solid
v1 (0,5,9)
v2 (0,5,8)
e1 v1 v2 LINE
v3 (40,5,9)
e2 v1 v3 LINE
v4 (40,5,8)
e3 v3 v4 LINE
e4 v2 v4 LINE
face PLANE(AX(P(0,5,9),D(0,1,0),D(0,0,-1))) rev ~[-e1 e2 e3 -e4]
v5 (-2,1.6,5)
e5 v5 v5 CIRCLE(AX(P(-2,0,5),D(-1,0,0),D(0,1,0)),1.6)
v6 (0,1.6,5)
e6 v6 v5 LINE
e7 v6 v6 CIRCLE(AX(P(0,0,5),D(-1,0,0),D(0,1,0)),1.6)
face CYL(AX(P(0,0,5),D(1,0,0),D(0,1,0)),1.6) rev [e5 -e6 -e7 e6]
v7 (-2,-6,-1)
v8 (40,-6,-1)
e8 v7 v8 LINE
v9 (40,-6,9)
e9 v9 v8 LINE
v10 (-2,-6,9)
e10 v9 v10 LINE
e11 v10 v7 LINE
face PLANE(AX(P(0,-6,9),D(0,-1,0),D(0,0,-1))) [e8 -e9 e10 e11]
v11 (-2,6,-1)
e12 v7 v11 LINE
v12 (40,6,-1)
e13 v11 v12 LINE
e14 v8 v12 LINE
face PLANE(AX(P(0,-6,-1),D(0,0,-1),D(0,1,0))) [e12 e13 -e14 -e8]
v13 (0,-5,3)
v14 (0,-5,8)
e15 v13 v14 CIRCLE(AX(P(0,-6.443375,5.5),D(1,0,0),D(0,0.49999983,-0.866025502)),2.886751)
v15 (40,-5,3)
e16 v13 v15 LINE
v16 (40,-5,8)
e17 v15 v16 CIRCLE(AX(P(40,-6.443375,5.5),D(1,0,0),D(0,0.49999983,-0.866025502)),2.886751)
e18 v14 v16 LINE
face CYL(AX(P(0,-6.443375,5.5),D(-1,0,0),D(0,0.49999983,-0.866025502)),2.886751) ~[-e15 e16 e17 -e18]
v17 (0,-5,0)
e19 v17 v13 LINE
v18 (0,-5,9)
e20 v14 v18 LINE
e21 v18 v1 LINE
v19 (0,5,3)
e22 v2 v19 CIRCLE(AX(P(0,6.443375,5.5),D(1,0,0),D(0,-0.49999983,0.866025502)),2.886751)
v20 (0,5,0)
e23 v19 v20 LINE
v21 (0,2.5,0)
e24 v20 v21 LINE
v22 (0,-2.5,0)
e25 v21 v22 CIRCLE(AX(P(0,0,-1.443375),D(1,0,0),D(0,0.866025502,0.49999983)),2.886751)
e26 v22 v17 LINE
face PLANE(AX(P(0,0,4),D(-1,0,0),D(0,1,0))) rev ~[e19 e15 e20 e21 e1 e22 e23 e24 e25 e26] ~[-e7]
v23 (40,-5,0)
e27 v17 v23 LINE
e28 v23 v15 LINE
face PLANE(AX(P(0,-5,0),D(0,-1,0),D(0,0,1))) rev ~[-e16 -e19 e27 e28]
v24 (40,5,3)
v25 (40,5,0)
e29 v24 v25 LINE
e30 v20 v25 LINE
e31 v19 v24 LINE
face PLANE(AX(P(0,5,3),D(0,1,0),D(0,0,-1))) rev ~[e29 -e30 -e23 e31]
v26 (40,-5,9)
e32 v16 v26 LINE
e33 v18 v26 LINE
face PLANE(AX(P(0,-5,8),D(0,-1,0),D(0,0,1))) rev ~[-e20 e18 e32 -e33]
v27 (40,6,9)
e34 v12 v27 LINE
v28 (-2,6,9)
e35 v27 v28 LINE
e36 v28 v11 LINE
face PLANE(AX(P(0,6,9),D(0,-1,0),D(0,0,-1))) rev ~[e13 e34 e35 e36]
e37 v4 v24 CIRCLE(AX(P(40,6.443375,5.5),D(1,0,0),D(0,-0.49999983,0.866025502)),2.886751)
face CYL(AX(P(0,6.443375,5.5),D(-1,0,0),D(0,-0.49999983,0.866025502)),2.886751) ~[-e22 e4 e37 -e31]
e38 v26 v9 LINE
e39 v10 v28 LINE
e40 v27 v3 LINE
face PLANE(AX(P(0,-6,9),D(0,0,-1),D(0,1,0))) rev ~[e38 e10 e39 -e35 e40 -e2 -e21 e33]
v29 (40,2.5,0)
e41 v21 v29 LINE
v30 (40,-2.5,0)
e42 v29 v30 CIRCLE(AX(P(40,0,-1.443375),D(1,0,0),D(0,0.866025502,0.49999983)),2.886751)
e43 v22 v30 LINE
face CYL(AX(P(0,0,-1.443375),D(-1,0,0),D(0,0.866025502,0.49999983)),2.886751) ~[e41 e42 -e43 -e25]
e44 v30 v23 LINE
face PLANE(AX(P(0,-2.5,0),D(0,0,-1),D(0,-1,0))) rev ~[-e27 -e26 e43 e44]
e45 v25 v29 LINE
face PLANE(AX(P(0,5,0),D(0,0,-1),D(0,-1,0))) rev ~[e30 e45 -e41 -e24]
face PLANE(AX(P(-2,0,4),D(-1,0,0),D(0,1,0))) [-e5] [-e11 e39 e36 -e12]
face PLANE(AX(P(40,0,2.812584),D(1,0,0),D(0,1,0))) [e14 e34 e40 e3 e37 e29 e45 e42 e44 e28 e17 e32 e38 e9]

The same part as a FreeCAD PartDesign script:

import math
import FreeCAD as App
import Part
import Sketcher


def add_polygon(sketch, points):
    """Adds a closed chain of lines whose ends are joined by coincident constraints."""
    first, n = sketch.GeometryCount, len(points)
    for a, b in zip(points, points[1:] + points[:1]):
        sketch.addGeometry(Part.LineSegment(App.Vector(*a, 0), App.Vector(*b, 0)), False)
    for i in range(n):
        sketch.addConstraint(Sketcher.Constraint("Coincident", first + i, 2, first + (i + 1) % n, 1))

doc = App.newDocument("Part")
body = doc.addObject("PartDesign::Body", "Body")

# Sketch on YZ plane
sketch1 = body.newObject("Sketcher::SketchObject", "Sketch")
sketch1.AttachmentSupport = (doc.getObject("YZ_Plane"), [""])
sketch1.MapMode = "FlatFace"
sketch1.addGeometry([
    Part.LineSegment(App.Vector(-5, 8, 0), App.Vector(-5, 9, 0)),  # 0
    Part.LineSegment(App.Vector(-5, 9, 0), App.Vector(-6, 9, 0)),  # 1
    Part.LineSegment(App.Vector(-6, 9, 0), App.Vector(-6, -1, 0)),  # 2
    Part.LineSegment(App.Vector(-6, -1, 0), App.Vector(6, -1, 0)),  # 3
    Part.LineSegment(App.Vector(6, -1, 0), App.Vector(6, 9, 0)),  # 4
    Part.LineSegment(App.Vector(6, 9, 0), App.Vector(5, 9, 0)),  # 5
    Part.LineSegment(App.Vector(5, 9, 0), App.Vector(5, 8, 0)),  # 6
    Part.ArcOfCircle(Part.Circle(App.Vector(6.4, 5.5, 0), App.Vector(0, 0, 1), 2.9), math.radians(120), math.radians(240)),  # 7
    Part.LineSegment(App.Vector(5, 3, 0), App.Vector(5, 0, 0)),  # 8
    Part.LineSegment(App.Vector(5, 0, 0), App.Vector(2.5, 0, 0)),  # 9
    Part.ArcOfCircle(Part.Circle(App.Vector(0, -1.4, 0), App.Vector(0, 0, 1), 2.9), math.radians(30), math.radians(150)),  # 10
    Part.LineSegment(App.Vector(-2.5, 0, 0), App.Vector(-5, 0, 0)),  # 11
    Part.LineSegment(App.Vector(-5, 0, 0), App.Vector(-5, 3, 0)),  # 12
    Part.ArcOfCircle(Part.Circle(App.Vector(-6.4, 5.5, 0), App.Vector(0, 0, 1), 2.9), math.radians(-60), math.radians(60)),  # 13
], False)
sketch1.addConstraint([
    Sketcher.Constraint("Coincident", 0, 2, 1, 1),
    Sketcher.Constraint("Coincident", 1, 2, 2, 1),
    Sketcher.Constraint("Coincident", 2, 2, 3, 1),
    Sketcher.Constraint("Coincident", 3, 2, 4, 1),
    Sketcher.Constraint("Coincident", 4, 2, 5, 1),
    Sketcher.Constraint("Coincident", 5, 2, 6, 1),
    Sketcher.Constraint("Coincident", 6, 2, 7, 1),
    Sketcher.Constraint("Coincident", 7, 2, 8, 1),
    Sketcher.Constraint("Coincident", 8, 2, 9, 1),
    Sketcher.Constraint("Coincident", 9, 2, 10, 1),
    Sketcher.Constraint("Coincident", 10, 2, 11, 1),
    Sketcher.Constraint("Coincident", 11, 2, 12, 1),
    Sketcher.Constraint("Coincident", 12, 2, 13, 1),
    Sketcher.Constraint("Coincident", 13, 2, 0, 1),
    Sketcher.Constraint("Vertical", 0),
    Sketcher.Constraint("Horizontal", 1),
    Sketcher.Constraint("Vertical", 2),
    Sketcher.Constraint("Horizontal", 3),
    Sketcher.Constraint("Vertical", 4),
    Sketcher.Constraint("Horizontal", 5),
    Sketcher.Constraint("Vertical", 6),
    Sketcher.Constraint("Vertical", 8),
    Sketcher.Constraint("Horizontal", 9),
    Sketcher.Constraint("Horizontal", 11),
    Sketcher.Constraint("Vertical", 12),
    Sketcher.Constraint("Equal", 7, 10),
    Sketcher.Constraint("Equal", 10, 13),
    Sketcher.Constraint("Symmetric", 9, 2, 10, 2, -1, 1),
    Sketcher.Constraint("Symmetric", 7, 3, 13, 3, -2),
    Sketcher.Constraint("Symmetric", 1, 2, 4, 2, -2),
    Sketcher.Constraint("Symmetric", 8, 2, 11, 2, -2),
    Sketcher.Constraint("Horizontal", 6, 2, 13, 2),
    Sketcher.Constraint("Vertical", 6, 2, 7, 2),
    Sketcher.Constraint("Equal", 5, 0),
    Sketcher.Constraint("DistanceX", 1, 2, 1, 1, 1.0),
    Sketcher.Constraint("DistanceX", 3, 1, 3, 2, 12.0),
    Sketcher.Constraint("DistanceY", 2, 2, 2, 1, 10.0),
    Sketcher.Constraint("DistanceY", 8, 2, 8, 1, 3.0),
    Sketcher.Constraint("DistanceX", 9, 2, 9, 1, 2.5),
    Sketcher.Constraint("DistanceY", -1, 1, 0, 2, 9.0),
    Sketcher.Constraint("Radius", 7, 2.886751),
])
pad1 = body.newObject("PartDesign::Pad", "Pad")
pad1.Profile = sketch1
pad1.Length = 40

# Sketch on YZ plane
sketch2 = body.newObject("Sketcher::SketchObject", "Sketch001")
sketch2.AttachmentSupport = (doc.getObject("YZ_Plane"), [""])
sketch2.MapMode = "FlatFace"
add_polygon(sketch2, [(-6, -1), (-6, 9), (6, 9), (6, -1)])  # lines 0-3
sketch2.addGeometry(Part.Circle(App.Vector(0, 5, 0), App.Vector(0, 0, 1), 1.6), False)  # 4
sketch2.addConstraint([
    Sketcher.Constraint("Vertical", 0),
    Sketcher.Constraint("Horizontal", 1),
    Sketcher.Constraint("Vertical", 2),
    Sketcher.Constraint("Horizontal", 3),
    Sketcher.Constraint("PointOnObject", 4, 3, -2),
    Sketcher.Constraint("Diameter", 4, 3.2),
    Sketcher.Constraint("DistanceX", 1, 1, 1, 2, 12.0),
    Sketcher.Constraint("DistanceY", 0, 1, 0, 2, 10.0),
    Sketcher.Constraint("DistanceY", -1, 1, 4, 3, 5.0),
    Sketcher.Constraint("DistanceX", 0, 2, -1, 1, 6.0),
    Sketcher.Constraint("DistanceY", -1, 1, 0, 2, 9.0),
])
pad2 = body.newObject("PartDesign::Pad", "Pad001")
pad2.Profile = sketch2
pad2.Length = 2
pad2.Reversed = True

doc.recompute()
